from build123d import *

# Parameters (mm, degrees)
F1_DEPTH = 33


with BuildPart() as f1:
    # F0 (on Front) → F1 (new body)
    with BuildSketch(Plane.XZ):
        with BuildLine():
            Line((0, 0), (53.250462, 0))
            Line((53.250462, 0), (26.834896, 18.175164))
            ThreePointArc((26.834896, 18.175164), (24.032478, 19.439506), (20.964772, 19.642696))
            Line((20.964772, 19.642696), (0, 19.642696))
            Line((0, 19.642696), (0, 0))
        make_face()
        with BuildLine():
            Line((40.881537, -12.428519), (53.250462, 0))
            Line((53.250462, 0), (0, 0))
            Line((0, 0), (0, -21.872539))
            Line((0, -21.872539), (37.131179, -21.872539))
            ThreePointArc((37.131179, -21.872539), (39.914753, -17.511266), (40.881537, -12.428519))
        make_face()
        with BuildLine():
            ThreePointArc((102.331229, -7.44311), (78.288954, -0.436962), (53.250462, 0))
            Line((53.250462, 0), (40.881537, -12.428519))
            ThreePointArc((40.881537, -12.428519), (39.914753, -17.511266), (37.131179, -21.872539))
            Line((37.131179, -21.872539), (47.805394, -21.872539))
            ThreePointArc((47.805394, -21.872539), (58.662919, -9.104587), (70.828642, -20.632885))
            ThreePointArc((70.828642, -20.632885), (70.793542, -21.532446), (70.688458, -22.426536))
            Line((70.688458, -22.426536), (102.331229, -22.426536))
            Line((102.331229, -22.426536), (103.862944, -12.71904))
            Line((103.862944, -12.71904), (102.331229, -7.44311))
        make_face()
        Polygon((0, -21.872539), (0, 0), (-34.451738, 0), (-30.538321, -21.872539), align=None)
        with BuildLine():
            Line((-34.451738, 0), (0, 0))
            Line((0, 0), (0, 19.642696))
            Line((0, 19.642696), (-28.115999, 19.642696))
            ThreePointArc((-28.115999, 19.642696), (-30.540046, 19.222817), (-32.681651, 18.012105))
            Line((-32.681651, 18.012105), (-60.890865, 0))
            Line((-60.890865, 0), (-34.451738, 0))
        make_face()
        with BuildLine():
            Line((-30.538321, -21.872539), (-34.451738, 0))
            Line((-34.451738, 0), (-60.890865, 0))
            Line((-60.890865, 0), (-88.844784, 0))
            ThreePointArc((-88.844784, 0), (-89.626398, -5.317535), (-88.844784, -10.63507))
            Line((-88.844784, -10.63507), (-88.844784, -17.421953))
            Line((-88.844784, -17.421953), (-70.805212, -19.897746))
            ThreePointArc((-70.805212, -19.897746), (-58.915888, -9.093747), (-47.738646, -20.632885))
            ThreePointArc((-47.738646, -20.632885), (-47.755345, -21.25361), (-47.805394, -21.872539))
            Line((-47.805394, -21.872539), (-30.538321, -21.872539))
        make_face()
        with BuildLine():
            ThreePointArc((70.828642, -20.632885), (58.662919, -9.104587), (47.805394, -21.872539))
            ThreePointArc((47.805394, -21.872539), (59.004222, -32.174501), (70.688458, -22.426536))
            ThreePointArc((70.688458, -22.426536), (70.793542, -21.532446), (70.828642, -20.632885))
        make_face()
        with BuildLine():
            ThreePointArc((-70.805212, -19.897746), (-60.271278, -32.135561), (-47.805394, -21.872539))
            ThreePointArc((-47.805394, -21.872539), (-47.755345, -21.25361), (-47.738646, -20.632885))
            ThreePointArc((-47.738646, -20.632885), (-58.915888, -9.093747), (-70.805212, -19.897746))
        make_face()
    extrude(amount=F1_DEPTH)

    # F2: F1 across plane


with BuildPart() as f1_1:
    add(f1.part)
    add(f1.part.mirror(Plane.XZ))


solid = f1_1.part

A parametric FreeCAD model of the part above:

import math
import FreeCAD as App
import Part
import Sketcher

V = App.Vector
Q = App.Units.Quantity

doc = App.newDocument("Part")
body = doc.addObject("PartDesign::Body", "Body")

# Sketch on XZ plane
sketch1 = doc.addObject("Sketcher::SketchObject", "Sketch")
body.addObject(sketch1)
sketch1.AttachmentSupport = (doc.XZ_Plane, [""])
sketch1.MapMode = "FlatFace"
sketch1.addGeometry([
    Part.LineSegment(V(53.3, 0, 0), V(26.8, 18.2, 0)),  # 0
    Part.ArcOfCircle(Part.Circle(V(21.9, 11.1, 0), V(0, 0, 1), 8.6), math.radians(55), math.radians(96)),  # 1
    Part.LineSegment(V(21, 19.6, 0), V(-28.1, 19.6, 0)),  # 2
    Part.ArcOfCircle(Part.Circle(V(-28.1, 12.4, 0), V(0, 0, 1), 7.2), math.radians(90), math.radians(129)),  # 3
    Part.LineSegment(V(-32.7, 18, 0), V(-60.9, 0, 0)),  # 4
    Part.LineSegment(V(-60.9, 0, 0), V(-88.8, 0, 0)),  # 5
    Part.ArcOfCircle(Part.Circle(V(-71.1, -5.3, 0), V(0, 0, 1), 18.5), math.radians(163), math.radians(197)),  # 6
    Part.LineSegment(V(-88.8, -10.6, 0), V(-88.8, -17.4, 0)),  # 7
    Part.LineSegment(V(-88.8, -17.4, 0), V(-70.8, -19.9, 0)),  # 8
    Part.ArcOfCircle(Part.Circle(V(-59.3, -20.6, 0), V(0, 0, 1), 11.5), math.radians(176), math.radians(354)),  # 9
    Part.LineSegment(V(-47.8, -21.9, 0), V(47.8, -21.9, 0)),  # 10
    Part.ArcOfCircle(Part.Circle(V(59.3, -20.6, 0), V(0, 0, 1), 11.5), math.radians(-174), math.radians(-9)),  # 11
    Part.LineSegment(V(70.7, -22.4, 0), V(102.3, -22.4, 0)),  # 12
    Part.LineSegment(V(102.3, -22.4, 0), V(103.9, -12.7, 0)),  # 13
    Part.LineSegment(V(103.9, -12.7, 0), V(102.3, -7.4, 0)),  # 14
    Part.ArcOfCircle(Part.Circle(V(64.1, -93.8, 0), V(0, 0, 1), 94.4), math.radians(66), math.radians(97)),  # 15
], False)
sketch1.addConstraint([
    Sketcher.Constraint("Tangent", 0, 2, 1, 1),
    Sketcher.Constraint("Coincident", 1, 2, 2, 1),
    Sketcher.Constraint("Tangent", 2, 2, 3, 1),
    Sketcher.Constraint("Coincident", 3, 2, 4, 1),
    Sketcher.Constraint("Coincident", 4, 2, 5, 1),
    Sketcher.Constraint("Coincident", 5, 2, 6, 1),
    Sketcher.Constraint("Coincident", 6, 2, 7, 1),
    Sketcher.Constraint("Coincident", 7, 2, 8, 1),
    Sketcher.Constraint("Coincident", 8, 2, 9, 1),
    Sketcher.Constraint("Coincident", 9, 2, 10, 1),
    Sketcher.Constraint("Coincident", 10, 2, 11, 1),
    Sketcher.Constraint("Coincident", 11, 2, 12, 1),
    Sketcher.Constraint("Coincident", 12, 2, 13, 1),
    Sketcher.Constraint("Coincident", 13, 2, 14, 1),
    Sketcher.Constraint("Coincident", 14, 2, 15, 1),
    Sketcher.Constraint("Coincident", 15, 2, 0, 1),
    Sketcher.Constraint("Horizontal", 2),
    Sketcher.Constraint("Horizontal", 5),
    Sketcher.Constraint("Vertical", 7),
    Sketcher.Constraint("Horizontal", 10),
    Sketcher.Constraint("Horizontal", 12),
    Sketcher.Constraint("Equal", 9, 11),
    Sketcher.Constraint("Symmetric", 9, 3, 11, 3, -2),
    Sketcher.Constraint("PointOnObject", 4, 2, -1),
    Sketcher.Constraint("PointOnObject", 15, 2, -1),
    Sketcher.Constraint("Vertical", 5, 2, 6, 2),
    Sketcher.Constraint("Vertical", 12, 2, 14, 2),
    Sketcher.Constraint("Radius", 1, Q("8.641449 mm")),
    Sketcher.Constraint("Radius", 3, Q("7.20721 mm")),
    Sketcher.Constraint("Radius", 15, Q("94.384292 mm")),
    Sketcher.Constraint("DistanceX", 2, 2, -1, 1, Q("28.115999 mm")),
    Sketcher.Constraint("Radius", 6, Q("18.479134 mm")),
    Sketcher.Constraint("Radius", 9, Q("11.544997 mm")),
    Sketcher.Constraint("DistanceX", 9, 3, 15, 3, Q("123.421001 mm")),
    Sketcher.Constraint("DistanceX", 2, 2, 2, 1, Q("49.080771 mm")),
    Sketcher.Constraint("DistanceX", 5, 2, 5, 1, Q("27.953919 mm")),
    Sketcher.Constraint("DistanceX", 10, 1, 10, 2, Q("95.610788 mm")),
    Sketcher.Constraint("DistanceX", 12, 1, 12, 2, Q("31.642771 mm")),
    Sketcher.Constraint("DistanceY", 6, 3, 0, 2, Q("23.492699 mm")),
    Sketcher.Constraint("DistanceX", 6, 3, 4, 2, Q("10.256399 mm")),
    Sketcher.Constraint("DistanceY", 11, 2, 0, 2, Q("40.6017 mm")),
    Sketcher.Constraint("DistanceX", 11, 3, 13, 2, Q("44.5793 mm")),
    Sketcher.Constraint("DistanceY", 10, 2, 13, 2, Q("9.153499 mm")),
    Sketcher.Constraint("Distance", 0, Q("32.06429 mm")),
    Sketcher.Constraint("Distance", 8, Q("18.208671 mm")),
    Sketcher.Constraint("DistanceY", 7, 2, 7, 1, Q("6.786883 mm")),
    Sketcher.Constraint("DistanceX", 3, 2, -1, 1, Q("32.681651 mm")),
    Sketcher.Constraint("DistanceX", 8, 2, -1, 1, Q("70.805212 mm")),
    Sketcher.Constraint("DistanceY", 9, 2, -1, 1, Q("21.872539 mm")),
    Sketcher.Constraint("DistanceX", -1, 1, 12, 2, Q("102.331229 mm")),
    Sketcher.Constraint("DistanceY", 14, 2, -1, 1, Q("7.44311 mm")),
])
pad1 = doc.addObject("PartDesign::Pad", "Pad")
body.addObject(pad1)
pad1.Profile = sketch1
pad1.Length = 33
body2 = doc.addObject("PartDesign::Body", "Body001")
doc.recompute()

body2.BaseFeature = body
doc.recompute()

mirroring = doc.addObject("Part::Mirroring", "Mirroring")
mirroring.Source = body
mirroring.Base = V(0, 0, 0)
mirroring.Normal = V(0, -1, 0)
body3 = doc.addObject("PartDesign::Body", "Body002")
body3.BaseFeature = mirroring
boolean = doc.addObject("PartDesign::Boolean", "Boolean")
body2.addObject(boolean)
boolean.Type = "Fuse"
boolean.addObjects([body3])
doc.recompute()
mirroring.Visibility = False

doc.recompute()
